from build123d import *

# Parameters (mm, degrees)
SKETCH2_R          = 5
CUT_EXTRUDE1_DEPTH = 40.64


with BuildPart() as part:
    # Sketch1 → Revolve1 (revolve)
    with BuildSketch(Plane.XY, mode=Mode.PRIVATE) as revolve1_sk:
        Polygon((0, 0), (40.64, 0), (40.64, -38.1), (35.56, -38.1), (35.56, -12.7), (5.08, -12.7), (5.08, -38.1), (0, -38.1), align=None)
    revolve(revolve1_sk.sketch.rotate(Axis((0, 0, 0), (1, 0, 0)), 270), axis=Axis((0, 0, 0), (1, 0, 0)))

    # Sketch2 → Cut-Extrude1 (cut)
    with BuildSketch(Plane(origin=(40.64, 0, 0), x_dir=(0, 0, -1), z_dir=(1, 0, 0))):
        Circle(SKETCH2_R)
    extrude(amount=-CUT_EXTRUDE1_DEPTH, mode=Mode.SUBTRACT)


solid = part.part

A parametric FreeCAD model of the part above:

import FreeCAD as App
import Part
import Sketcher

V = App.Vector
Q = App.Units.Quantity

doc = App.newDocument("Part")
body = doc.addObject("PartDesign::Body", "Body")

sketch1 = doc.addObject("Sketcher::SketchObject", "Sketch")
body.addObject(sketch1)
sketch1.AttachmentSupport = (doc.XY_Plane, [""])
sketch1.MapMode = "FlatFace"
sketch1.addGeometry(Part.LineSegment(V(40.64, 0, 0), V(0, 0, 0)), False)
sketch1.addGeometry(Part.LineSegment(V(0, 0, 0), V(0, -38.1, 0)), False)
sketch1.addGeometry(Part.LineSegment(V(0, -38.1, 0), V(5.08, -38.1, 0)), False)
sketch1.addGeometry(Part.LineSegment(V(5.08, -38.1, 0), V(5.08, -12.7, 0)), False)
sketch1.addGeometry(Part.LineSegment(V(5.08, -12.7, 0), V(35.56, -12.7, 0)), False)
sketch1.addGeometry(Part.LineSegment(V(35.56, -12.7, 0), V(35.56, -38.1, 0)), False)
sketch1.addGeometry(Part.LineSegment(V(35.56, -38.1, 0), V(40.64, -38.1, 0)), False)
sketch1.addGeometry(Part.LineSegment(V(40.64, -38.1, 0), V(40.64, 0, 0)), False)
sketch1.addConstraint(Sketcher.Constraint("Coincident", 0, 2, 1, 1))
sketch1.addConstraint(Sketcher.Constraint("Coincident", 1, 2, 2, 1))
sketch1.addConstraint(Sketcher.Constraint("Coincident", 2, 2, 3, 1))
sketch1.addConstraint(Sketcher.Constraint("Coincident", 3, 2, 4, 1))
sketch1.addConstraint(Sketcher.Constraint("Coincident", 4, 2, 5, 1))
sketch1.addConstraint(Sketcher.Constraint("Coincident", 5, 2, 6, 1))
sketch1.addConstraint(Sketcher.Constraint("Coincident", 6, 2, 7, 1))
sketch1.addConstraint(Sketcher.Constraint("Coincident", 7, 2, 0, 1))
sketch1.addConstraint(Sketcher.Constraint("Horizontal", 0))
sketch1.addConstraint(Sketcher.Constraint("Vertical", 1))
sketch1.addConstraint(Sketcher.Constraint("Horizontal", 2))
sketch1.addConstraint(Sketcher.Constraint("Vertical", 3))
sketch1.addConstraint(Sketcher.Constraint("Horizontal", 4))
sketch1.addConstraint(Sketcher.Constraint("Vertical", 5))
sketch1.addConstraint(Sketcher.Constraint("Horizontal", 6))
sketch1.addConstraint(Sketcher.Constraint("Vertical", 7))
sketch1.addConstraint(Sketcher.Constraint("Coincident", 0, 2, -1, 1))
sketch1.addConstraint(Sketcher.Constraint("Horizontal", 2, 2, 5, 2))
sketch1.addConstraint(Sketcher.Constraint("Equal", 2, 6))
sketch1.addConstraint(Sketcher.Constraint("DistanceY", 3, 1, 3, 2, Q("1 in")))
sketch1.addConstraint(Sketcher.Constraint("DistanceX", 0, 2, 0, 1, Q("1.6 in")))
sketch1.addConstraint(Sketcher.Constraint("DistanceX", 2, 1, 2, 2, Q("0.2 in")))
sketch1.addConstraint(Sketcher.Constraint("DistanceY", 1, 2, 1, 1, Q("1.5 in")))
revolution = doc.addObject("PartDesign::Revolution", "Revolution")
body.addObject(revolution)
revolution.Profile = sketch1
revolution.ReferenceAxis = (sketch1, ["H_Axis"])
revolution.Angle = 360

sketch2 = doc.addObject("Sketcher::SketchObject", "Sketch001")
body.addObject(sketch2)
sketch2.AttachmentSupport = (doc.YZ_Plane, [""])
sketch2.MapMode = "FlatFace"
sketch2.AttachmentOffset = App.Placement(V(0, 0, 1.6 * 25.4), App.Rotation())
sketch2.addGeometry(Part.Circle(V(0, 0, 0), V(0, 0, 1), 5), False)
sketch2.addConstraint(Sketcher.Constraint("Coincident", 0, 3, -1, 1))
sketch2.addConstraint(Sketcher.Constraint("Diameter", 0, Q("10 mm")))
pocket1 = doc.addObject("PartDesign::Pocket", "Pocket")
body.addObject(pocket1)
pocket1.Profile = sketch2
pocket1.Length = Q("1.6 in")

doc.recompute()
